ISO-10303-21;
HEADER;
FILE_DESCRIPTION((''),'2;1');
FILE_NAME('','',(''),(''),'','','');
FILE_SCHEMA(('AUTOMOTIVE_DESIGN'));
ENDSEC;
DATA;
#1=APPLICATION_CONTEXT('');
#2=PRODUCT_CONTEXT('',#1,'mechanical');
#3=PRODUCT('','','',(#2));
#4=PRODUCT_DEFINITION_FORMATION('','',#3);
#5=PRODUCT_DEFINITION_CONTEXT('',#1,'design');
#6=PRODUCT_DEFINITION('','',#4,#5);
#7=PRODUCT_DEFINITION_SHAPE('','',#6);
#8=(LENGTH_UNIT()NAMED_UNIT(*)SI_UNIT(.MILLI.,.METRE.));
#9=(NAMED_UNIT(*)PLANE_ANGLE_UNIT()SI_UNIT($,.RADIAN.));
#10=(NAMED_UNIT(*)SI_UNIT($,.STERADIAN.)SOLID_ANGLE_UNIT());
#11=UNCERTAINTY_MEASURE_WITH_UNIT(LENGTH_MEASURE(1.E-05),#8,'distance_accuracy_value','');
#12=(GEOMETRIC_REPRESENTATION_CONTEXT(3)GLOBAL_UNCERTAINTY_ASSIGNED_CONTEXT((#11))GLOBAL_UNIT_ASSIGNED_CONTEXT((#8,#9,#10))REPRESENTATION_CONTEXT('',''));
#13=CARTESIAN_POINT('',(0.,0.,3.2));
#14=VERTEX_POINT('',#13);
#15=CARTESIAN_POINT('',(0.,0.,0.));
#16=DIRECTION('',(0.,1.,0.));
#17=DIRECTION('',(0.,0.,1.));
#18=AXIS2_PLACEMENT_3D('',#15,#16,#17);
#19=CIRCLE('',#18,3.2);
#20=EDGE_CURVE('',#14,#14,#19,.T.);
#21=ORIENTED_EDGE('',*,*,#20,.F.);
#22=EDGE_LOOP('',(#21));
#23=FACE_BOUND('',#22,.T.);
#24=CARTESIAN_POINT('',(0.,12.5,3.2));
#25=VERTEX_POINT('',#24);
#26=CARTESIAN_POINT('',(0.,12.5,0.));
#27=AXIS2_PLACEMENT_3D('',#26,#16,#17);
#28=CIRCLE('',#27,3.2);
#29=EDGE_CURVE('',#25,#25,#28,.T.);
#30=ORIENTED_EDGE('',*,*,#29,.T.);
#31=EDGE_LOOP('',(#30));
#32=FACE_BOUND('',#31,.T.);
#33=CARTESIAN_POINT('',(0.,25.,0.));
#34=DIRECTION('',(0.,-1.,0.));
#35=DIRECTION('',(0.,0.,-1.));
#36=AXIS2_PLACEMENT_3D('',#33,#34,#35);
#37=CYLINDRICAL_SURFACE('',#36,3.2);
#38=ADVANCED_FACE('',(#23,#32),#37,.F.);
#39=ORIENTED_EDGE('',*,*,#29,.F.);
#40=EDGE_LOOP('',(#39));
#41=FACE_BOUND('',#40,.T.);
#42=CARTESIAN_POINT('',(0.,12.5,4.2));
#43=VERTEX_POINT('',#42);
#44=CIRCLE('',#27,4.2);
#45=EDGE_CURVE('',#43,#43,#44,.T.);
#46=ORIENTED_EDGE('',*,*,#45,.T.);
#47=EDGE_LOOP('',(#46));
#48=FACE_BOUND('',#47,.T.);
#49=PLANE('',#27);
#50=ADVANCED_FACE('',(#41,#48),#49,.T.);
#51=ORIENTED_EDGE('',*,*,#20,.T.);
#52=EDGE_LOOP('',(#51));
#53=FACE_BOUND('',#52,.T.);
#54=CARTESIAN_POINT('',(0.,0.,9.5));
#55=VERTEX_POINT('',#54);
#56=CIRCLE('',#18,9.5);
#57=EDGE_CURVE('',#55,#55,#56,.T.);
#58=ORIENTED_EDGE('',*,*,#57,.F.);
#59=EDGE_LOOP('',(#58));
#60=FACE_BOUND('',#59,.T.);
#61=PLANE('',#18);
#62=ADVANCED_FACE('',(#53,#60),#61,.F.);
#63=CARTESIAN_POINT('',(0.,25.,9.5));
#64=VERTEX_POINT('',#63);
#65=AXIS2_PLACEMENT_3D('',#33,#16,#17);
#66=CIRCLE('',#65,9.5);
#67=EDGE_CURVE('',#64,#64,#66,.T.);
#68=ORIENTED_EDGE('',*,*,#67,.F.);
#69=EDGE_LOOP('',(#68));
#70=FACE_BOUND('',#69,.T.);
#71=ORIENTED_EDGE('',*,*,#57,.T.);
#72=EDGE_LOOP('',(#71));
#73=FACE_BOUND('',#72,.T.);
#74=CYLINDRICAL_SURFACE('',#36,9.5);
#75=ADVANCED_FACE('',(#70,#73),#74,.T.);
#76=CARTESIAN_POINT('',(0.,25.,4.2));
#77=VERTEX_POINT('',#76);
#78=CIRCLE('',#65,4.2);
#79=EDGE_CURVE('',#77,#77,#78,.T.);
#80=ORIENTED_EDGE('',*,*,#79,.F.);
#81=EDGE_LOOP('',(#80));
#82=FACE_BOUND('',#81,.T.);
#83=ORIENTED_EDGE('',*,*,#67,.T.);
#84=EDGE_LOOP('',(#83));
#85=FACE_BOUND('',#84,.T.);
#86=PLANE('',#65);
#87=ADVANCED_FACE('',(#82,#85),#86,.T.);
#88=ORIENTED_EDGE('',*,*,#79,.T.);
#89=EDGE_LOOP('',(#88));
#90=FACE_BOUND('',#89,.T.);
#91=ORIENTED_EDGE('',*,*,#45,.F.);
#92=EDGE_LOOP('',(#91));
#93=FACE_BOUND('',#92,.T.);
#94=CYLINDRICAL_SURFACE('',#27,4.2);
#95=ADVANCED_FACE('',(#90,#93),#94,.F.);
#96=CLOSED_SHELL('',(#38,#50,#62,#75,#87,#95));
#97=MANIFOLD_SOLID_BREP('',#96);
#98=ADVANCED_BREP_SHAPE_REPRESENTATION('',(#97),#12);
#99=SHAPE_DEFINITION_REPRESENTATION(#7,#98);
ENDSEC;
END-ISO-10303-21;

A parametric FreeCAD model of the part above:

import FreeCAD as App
import Part
import Sketcher
Q = App.Units.Quantity

doc = App.newDocument("Part")
body = doc.addObject("PartDesign::Body", "Body")

sketch1 = doc.addObject("Sketcher::SketchObject", "Sketch")
body.addObject(sketch1)
sketch1.AttachmentSupport = (doc.XZ_Plane, [""])
sketch1.MapMode = "FlatFace"
sketch1.addGeometry([
    Part.Circle(App.Vector(0, 0, 0), App.Vector(0, 0, 1), 9.5),
    Part.Circle(App.Vector(0, 0, 0), App.Vector(0, 0, 1), 3.2),
], False)
sketch1.addConstraint([
    Sketcher.Constraint("Coincident", 0, 3, -1, 1),
    Sketcher.Constraint("Coincident", 1, 3, -1, 1),
    Sketcher.Constraint("Diameter", 0, Q("19 mm")),
    Sketcher.Constraint("Diameter", 1, Q("6.4 mm")),
])
pad1 = doc.addObject("PartDesign::Pad", "Pad")
body.addObject(pad1)
pad1.Profile = sketch1
pad1.Length = 25
pad1.Reversed = True

sketch2 = doc.addObject("Sketcher::SketchObject", "Sketch001")
body.addObject(sketch2)
sketch2.AttachmentSupport = (doc.XZ_Plane, [""])
sketch2.MapMode = "FlatFace"
sketch2.AttachmentOffset = App.Placement(App.Vector(0, 0, -25), App.Rotation())
sketch2.addGeometry(Part.Circle(App.Vector(0, 0, 0), App.Vector(0, 0, 1), 4.2), False)
sketch2.addConstraint([
    Sketcher.Constraint("Coincident", 0, 3, -1, 1),
    Sketcher.Constraint("Diameter", 0, Q("8.4 mm")),
])
pocket1 = doc.addObject("PartDesign::Pocket", "Pocket")
body.addObject(pocket1)
pocket1.Profile = sketch2
pocket1.Length = 12.5
pocket1.Reversed = True

doc.recompute()
